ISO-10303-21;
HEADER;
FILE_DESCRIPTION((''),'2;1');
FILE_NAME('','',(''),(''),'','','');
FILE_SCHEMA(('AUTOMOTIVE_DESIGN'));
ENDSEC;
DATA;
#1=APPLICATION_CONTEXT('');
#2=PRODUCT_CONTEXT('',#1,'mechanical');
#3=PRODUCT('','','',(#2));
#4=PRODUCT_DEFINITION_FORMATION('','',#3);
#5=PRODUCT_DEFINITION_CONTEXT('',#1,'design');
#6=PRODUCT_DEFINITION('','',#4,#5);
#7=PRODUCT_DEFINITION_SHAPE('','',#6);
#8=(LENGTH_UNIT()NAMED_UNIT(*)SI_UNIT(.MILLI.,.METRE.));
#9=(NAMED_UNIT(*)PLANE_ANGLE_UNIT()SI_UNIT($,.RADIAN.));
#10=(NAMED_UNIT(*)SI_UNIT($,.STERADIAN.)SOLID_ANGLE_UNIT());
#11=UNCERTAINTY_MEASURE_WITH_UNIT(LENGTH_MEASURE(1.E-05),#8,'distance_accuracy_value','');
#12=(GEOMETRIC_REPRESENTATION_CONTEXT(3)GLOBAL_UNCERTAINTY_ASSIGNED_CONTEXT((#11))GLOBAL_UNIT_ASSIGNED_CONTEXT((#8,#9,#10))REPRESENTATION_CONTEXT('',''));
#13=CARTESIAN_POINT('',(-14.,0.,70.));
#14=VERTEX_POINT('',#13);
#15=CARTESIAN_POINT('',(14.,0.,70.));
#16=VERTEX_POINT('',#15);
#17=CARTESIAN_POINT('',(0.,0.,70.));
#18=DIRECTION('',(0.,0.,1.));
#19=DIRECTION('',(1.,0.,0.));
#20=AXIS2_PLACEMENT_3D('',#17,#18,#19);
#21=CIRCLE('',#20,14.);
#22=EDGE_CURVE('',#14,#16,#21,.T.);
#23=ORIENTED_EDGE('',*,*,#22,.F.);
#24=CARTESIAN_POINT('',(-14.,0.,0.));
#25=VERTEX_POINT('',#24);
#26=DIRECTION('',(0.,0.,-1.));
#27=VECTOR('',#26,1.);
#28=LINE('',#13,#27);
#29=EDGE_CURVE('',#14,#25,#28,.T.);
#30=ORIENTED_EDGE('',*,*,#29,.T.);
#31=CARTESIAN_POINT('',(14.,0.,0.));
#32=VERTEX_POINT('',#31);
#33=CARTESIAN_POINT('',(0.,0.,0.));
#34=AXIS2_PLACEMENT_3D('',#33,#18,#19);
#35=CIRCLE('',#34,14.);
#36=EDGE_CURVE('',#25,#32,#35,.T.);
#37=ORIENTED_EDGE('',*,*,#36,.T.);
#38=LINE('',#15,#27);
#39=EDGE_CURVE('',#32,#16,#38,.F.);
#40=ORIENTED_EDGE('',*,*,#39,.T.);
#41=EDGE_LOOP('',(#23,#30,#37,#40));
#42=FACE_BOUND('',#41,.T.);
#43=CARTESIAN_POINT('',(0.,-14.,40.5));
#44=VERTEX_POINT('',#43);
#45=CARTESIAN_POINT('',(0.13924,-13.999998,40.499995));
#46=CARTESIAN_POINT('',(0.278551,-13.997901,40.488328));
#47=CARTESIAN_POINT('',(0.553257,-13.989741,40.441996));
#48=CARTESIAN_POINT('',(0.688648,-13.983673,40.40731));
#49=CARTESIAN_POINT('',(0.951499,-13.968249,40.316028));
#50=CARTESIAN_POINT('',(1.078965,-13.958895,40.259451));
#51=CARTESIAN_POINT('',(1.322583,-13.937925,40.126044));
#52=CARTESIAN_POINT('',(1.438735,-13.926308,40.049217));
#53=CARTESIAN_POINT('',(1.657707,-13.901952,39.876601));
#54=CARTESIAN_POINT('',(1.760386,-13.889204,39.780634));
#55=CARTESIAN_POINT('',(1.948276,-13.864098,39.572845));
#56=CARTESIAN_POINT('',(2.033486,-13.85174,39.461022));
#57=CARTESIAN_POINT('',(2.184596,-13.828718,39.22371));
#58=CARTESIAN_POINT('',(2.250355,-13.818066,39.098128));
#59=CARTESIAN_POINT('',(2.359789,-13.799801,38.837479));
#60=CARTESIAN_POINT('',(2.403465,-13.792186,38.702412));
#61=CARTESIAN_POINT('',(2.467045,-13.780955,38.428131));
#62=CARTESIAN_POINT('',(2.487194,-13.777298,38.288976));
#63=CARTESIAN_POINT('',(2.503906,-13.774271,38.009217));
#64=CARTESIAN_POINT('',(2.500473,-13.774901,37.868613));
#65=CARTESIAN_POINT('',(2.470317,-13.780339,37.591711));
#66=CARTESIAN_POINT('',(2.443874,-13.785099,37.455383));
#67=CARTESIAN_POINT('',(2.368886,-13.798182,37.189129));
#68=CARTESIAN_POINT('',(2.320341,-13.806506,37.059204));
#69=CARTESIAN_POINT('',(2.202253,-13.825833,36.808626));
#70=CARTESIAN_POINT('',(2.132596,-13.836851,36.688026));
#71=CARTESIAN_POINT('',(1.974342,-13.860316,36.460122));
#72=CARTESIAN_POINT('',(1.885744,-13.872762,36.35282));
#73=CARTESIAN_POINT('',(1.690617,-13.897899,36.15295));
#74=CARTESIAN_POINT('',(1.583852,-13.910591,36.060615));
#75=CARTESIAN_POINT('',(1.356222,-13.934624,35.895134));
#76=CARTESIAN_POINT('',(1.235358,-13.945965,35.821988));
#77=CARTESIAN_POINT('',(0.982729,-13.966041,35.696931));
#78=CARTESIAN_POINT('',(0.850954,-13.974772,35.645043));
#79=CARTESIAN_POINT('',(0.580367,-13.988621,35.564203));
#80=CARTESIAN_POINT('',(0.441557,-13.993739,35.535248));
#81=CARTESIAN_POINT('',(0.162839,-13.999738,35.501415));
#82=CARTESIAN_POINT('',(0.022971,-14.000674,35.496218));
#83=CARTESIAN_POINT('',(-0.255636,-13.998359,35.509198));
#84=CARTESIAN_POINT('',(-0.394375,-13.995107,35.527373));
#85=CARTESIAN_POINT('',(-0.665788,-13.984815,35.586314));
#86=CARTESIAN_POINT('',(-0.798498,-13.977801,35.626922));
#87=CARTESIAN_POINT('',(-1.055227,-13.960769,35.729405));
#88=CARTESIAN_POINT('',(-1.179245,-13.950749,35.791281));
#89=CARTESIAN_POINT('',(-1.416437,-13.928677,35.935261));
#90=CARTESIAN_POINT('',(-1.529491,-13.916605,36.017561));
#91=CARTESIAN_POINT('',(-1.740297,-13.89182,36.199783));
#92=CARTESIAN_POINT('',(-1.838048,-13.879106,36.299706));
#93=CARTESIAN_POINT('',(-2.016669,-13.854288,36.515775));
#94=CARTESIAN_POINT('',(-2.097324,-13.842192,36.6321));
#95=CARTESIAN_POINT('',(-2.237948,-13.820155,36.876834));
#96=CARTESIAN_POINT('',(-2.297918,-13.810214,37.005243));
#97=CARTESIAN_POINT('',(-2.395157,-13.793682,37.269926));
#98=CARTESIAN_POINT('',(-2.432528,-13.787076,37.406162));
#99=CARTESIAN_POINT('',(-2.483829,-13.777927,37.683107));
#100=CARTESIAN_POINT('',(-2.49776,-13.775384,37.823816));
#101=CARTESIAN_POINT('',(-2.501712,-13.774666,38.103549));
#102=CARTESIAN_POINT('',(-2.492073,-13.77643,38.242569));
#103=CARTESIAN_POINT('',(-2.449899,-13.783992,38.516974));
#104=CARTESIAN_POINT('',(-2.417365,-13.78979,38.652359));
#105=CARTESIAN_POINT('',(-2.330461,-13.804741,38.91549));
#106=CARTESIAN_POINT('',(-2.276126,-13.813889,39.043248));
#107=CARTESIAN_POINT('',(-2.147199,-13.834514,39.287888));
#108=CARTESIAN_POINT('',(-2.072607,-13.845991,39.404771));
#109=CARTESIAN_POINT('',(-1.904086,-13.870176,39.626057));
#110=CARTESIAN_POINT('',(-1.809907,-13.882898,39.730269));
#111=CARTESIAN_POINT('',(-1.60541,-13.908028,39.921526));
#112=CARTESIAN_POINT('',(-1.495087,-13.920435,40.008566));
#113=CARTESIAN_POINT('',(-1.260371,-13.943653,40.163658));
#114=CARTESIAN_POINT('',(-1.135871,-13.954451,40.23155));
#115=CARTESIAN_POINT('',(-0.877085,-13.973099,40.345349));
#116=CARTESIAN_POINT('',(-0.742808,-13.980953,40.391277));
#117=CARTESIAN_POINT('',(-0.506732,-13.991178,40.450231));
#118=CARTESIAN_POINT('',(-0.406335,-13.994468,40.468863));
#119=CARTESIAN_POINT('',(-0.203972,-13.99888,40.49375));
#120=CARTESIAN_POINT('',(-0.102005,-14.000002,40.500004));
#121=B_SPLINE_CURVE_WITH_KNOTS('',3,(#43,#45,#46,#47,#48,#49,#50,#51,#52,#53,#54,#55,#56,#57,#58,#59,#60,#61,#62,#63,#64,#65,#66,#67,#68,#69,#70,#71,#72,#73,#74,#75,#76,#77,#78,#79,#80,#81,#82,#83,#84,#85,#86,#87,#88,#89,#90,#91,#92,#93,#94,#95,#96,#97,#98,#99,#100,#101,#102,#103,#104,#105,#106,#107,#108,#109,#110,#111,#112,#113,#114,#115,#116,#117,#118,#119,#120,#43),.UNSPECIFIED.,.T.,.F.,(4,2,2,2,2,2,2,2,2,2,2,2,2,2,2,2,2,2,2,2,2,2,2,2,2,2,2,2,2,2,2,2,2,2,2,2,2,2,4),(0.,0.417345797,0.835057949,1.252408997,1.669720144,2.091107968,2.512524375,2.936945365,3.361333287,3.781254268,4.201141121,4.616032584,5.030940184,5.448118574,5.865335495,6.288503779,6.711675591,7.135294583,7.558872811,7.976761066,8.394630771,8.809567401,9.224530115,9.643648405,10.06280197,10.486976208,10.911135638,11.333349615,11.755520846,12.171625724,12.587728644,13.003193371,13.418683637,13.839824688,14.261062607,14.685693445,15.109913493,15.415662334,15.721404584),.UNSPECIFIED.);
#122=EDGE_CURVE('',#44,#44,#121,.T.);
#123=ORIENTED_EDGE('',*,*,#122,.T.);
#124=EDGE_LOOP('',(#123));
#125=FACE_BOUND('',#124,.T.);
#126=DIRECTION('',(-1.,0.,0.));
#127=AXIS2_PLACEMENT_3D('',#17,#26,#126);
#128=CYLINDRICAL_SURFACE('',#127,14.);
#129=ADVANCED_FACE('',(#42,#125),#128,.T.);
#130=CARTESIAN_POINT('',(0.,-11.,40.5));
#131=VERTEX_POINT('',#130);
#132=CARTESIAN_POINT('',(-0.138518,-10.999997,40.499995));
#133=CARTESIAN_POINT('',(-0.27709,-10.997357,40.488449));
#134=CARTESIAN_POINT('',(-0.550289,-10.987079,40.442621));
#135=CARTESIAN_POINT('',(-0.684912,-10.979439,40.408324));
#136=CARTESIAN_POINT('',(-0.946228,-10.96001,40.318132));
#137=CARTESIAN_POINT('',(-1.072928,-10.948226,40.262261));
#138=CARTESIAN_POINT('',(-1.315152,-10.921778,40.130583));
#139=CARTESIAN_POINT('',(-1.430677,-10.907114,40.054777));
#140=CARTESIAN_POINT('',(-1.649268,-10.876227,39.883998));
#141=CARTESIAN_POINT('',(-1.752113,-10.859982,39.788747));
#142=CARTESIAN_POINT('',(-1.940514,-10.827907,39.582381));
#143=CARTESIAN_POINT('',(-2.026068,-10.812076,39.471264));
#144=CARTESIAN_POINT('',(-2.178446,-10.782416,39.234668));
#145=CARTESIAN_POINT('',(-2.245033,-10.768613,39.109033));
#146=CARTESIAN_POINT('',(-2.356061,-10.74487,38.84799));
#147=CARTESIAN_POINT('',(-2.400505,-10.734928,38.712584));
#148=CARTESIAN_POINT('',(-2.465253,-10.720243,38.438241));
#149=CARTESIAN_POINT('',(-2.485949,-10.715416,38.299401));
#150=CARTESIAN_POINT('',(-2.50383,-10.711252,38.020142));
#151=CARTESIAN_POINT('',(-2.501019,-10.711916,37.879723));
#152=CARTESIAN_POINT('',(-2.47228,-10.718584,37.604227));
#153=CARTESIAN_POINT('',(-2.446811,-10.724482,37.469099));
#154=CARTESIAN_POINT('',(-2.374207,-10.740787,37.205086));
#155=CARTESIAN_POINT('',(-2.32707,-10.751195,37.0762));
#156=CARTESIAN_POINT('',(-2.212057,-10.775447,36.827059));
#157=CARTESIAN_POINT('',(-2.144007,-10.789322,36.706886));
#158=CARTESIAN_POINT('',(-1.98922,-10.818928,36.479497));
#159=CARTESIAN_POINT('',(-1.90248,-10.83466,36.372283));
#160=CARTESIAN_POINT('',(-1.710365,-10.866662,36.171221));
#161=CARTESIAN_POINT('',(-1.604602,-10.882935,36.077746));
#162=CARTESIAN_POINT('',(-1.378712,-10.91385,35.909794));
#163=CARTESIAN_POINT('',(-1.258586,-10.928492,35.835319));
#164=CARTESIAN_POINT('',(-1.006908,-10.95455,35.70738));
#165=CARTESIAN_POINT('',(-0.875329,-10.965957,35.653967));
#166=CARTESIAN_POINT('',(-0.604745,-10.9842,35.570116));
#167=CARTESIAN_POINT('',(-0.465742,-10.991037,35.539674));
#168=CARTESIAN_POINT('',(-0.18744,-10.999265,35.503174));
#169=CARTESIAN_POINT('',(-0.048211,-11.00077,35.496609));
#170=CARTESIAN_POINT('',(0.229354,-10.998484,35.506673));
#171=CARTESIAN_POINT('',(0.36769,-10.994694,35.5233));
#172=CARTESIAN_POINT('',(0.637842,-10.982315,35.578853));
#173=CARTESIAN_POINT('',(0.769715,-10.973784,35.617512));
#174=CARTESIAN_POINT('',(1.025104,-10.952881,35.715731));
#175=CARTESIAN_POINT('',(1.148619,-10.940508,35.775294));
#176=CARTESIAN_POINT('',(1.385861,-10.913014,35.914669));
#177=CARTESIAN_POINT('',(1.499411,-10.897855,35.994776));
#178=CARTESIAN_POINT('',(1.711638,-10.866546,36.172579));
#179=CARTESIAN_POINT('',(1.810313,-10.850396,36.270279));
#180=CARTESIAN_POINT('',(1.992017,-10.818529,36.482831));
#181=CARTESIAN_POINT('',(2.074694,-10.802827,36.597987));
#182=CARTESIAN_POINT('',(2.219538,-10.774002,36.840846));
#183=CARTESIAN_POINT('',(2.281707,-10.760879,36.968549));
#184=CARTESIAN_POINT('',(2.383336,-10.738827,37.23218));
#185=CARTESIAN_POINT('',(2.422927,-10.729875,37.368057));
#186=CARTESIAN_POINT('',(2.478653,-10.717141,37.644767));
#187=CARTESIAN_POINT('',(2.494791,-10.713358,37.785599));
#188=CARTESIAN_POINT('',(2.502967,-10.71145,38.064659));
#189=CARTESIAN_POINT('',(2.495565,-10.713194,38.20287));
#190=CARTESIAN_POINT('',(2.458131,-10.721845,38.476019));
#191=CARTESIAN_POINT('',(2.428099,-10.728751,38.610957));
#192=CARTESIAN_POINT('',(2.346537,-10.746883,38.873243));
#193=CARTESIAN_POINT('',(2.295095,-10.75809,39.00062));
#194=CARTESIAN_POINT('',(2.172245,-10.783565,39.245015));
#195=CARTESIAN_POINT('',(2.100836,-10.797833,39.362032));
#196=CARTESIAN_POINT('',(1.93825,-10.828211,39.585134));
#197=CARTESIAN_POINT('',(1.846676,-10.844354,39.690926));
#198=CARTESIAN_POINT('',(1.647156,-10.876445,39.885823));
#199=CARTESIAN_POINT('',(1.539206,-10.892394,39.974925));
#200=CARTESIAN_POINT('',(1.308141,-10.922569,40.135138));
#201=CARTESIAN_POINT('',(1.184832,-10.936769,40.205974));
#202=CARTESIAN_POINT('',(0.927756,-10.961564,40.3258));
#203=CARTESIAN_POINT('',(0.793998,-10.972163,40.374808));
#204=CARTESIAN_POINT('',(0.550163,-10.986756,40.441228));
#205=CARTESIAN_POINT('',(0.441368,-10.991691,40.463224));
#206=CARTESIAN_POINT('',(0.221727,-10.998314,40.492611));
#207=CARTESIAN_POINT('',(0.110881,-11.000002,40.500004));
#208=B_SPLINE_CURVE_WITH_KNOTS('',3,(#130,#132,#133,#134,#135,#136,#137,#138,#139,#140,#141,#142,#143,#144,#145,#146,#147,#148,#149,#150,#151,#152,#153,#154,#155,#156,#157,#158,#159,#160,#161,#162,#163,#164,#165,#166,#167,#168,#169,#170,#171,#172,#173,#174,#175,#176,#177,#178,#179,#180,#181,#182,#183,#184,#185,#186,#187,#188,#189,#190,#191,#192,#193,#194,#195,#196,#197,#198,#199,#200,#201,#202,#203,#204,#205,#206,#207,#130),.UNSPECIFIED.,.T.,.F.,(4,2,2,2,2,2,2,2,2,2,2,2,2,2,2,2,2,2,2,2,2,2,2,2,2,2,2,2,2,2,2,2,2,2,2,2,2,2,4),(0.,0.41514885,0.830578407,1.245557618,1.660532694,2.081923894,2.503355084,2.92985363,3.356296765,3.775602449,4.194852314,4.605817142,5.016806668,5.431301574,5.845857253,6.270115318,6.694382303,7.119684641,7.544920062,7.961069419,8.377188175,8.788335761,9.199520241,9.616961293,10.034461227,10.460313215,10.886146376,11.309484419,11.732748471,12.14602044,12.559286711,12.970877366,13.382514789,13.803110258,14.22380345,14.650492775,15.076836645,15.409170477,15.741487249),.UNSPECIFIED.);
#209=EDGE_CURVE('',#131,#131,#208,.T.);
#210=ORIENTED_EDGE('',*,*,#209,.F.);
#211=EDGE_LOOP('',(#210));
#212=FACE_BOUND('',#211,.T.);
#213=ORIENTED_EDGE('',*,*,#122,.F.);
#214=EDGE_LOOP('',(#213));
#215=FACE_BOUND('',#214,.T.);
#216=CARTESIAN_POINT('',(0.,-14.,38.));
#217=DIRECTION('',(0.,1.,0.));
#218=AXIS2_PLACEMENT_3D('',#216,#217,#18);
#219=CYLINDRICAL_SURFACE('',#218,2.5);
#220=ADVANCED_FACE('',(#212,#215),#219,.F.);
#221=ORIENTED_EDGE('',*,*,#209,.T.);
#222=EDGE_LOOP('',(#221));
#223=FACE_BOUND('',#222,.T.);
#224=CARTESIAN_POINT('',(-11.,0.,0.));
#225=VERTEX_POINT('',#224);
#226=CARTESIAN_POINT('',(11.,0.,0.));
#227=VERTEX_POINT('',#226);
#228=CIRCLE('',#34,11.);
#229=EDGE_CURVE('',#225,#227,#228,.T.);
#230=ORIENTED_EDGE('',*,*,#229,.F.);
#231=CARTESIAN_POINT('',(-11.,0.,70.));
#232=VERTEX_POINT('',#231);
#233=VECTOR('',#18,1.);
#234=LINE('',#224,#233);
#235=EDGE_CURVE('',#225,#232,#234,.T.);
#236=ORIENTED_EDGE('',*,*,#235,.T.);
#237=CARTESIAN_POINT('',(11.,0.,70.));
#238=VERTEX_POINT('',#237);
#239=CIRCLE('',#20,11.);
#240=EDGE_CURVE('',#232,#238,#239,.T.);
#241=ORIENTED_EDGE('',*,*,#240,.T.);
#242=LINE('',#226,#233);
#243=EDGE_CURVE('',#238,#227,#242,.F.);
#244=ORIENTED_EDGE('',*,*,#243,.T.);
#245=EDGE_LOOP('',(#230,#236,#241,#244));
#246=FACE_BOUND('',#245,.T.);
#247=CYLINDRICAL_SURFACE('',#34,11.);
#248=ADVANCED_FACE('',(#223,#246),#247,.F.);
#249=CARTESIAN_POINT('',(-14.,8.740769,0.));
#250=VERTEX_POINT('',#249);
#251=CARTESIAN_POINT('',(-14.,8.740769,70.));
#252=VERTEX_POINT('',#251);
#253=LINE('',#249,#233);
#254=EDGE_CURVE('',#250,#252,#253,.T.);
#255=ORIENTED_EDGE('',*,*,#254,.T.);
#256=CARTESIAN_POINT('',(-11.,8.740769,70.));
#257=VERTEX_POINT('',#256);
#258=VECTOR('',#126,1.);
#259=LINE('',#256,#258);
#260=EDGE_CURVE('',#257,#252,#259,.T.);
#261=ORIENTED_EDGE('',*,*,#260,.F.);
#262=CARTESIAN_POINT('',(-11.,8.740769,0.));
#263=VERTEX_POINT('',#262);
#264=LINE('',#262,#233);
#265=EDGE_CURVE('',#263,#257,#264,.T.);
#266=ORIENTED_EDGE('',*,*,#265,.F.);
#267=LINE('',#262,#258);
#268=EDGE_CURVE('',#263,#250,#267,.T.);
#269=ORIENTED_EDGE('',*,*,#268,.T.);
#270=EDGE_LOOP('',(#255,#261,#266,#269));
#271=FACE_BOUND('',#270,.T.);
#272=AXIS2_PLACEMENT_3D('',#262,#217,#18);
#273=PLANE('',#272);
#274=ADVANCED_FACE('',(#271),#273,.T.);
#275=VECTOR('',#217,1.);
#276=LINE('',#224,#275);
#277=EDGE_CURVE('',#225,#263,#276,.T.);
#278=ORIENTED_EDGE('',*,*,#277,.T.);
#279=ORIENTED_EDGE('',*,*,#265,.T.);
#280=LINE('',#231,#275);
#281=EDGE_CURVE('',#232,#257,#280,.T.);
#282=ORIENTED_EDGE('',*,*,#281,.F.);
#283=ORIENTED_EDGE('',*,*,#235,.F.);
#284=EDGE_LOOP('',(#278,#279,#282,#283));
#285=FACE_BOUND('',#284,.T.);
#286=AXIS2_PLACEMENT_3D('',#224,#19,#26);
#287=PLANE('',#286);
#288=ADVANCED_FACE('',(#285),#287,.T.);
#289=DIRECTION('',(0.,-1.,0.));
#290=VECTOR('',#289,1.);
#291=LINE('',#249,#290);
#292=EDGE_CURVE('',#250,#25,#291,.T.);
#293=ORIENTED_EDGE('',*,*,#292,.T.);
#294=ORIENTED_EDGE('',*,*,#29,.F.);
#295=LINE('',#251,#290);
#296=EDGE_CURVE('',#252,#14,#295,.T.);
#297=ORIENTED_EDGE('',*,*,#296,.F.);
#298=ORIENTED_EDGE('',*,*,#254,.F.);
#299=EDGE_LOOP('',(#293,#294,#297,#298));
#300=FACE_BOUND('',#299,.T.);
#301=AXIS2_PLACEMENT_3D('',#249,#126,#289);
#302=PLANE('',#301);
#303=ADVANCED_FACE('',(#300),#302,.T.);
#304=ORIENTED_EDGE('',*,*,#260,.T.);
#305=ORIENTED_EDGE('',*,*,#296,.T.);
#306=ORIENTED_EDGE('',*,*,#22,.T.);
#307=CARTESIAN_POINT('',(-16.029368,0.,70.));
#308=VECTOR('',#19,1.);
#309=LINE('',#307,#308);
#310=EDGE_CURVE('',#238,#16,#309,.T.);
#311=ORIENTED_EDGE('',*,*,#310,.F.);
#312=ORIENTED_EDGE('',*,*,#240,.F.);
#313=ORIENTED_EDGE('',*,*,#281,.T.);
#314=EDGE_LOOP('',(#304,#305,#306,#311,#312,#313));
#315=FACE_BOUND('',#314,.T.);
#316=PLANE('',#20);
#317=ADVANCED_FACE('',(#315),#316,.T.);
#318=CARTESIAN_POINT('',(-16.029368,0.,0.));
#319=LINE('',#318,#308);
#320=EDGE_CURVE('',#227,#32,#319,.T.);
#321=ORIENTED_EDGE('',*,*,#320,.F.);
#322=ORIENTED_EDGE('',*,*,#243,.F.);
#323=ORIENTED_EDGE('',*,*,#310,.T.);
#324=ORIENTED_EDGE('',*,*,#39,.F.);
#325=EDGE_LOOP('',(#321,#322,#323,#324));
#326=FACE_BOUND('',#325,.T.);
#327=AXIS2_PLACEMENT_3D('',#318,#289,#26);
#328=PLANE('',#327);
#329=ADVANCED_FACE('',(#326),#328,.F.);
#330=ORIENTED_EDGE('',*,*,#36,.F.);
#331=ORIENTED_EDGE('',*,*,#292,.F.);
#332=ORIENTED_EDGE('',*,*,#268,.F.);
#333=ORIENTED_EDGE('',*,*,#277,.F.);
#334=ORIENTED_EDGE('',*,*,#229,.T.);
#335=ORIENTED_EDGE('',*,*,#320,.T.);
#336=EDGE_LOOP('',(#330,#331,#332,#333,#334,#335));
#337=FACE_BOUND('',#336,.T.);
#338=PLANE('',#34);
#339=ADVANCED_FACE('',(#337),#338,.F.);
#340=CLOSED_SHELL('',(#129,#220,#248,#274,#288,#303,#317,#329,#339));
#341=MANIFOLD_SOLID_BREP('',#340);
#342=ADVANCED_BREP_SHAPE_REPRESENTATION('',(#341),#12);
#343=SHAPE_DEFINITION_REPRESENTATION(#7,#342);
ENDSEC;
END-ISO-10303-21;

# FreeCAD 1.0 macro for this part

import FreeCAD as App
import Part
import Sketcher

V = App.Vector
Q = App.Units.Quantity


def add_polygon(sketch, points):
    """Adds a closed chain of lines whose ends are joined by coincident constraints."""
    first, n = sketch.GeometryCount, len(points)
    for a, b in zip(points, points[1:] + points[:1]):
        sketch.addGeometry(Part.LineSegment(App.Vector(*a, 0), App.Vector(*b, 0)), False)
    for i in range(n):
        sketch.addConstraint(Sketcher.Constraint("Coincident", first + i, 2, first + (i + 1) % n, 1))

doc = App.newDocument("Part")
body = doc.addObject("PartDesign::Body", "Body")

sketch1 = doc.addObject("Sketcher::SketchObject", "Sketch")
body.addObject(sketch1)
sketch1.AttachmentSupport = (doc.XY_Plane, [""])
sketch1.MapMode = "FlatFace"
sketch1.addGeometry(Part.Circle(V(0, 0, 0), V(0, 0, 1), 14), False)
sketch1.addConstraint([
    Sketcher.Constraint("Coincident", 0, 3, -1, 1),
    Sketcher.Constraint("Diameter", 0, Q("28 mm")),
])
pad1 = doc.addObject("PartDesign::Pad", "Pad")
body.addObject(pad1)
pad1.Profile = sketch1
pad1.Length = 70

sketch2 = doc.addObject("Sketcher::SketchObject", "Sketch001")
body.addObject(sketch2)
sketch2.AttachmentSupport = (doc.XY_Plane, [""])
sketch2.MapMode = "FlatFace"
sketch2.AttachmentOffset = App.Placement(V(0, 0, 70), App.Rotation())
sketch2.addGeometry(Part.Circle(V(0, 0, 0), V(0, 0, 1), 11), False)
sketch2.addConstraint([
    Sketcher.Constraint("Coincident", 0, 3, -1, 1),
    Sketcher.Constraint("Diameter", 0, Q("22 mm")),
])
pocket1 = doc.addObject("PartDesign::Pocket", "Pocket")
body.addObject(pocket1)
pocket1.Profile = sketch2
pocket1.Type = "ThroughAll"

sketch3 = doc.addObject("Sketcher::SketchObject", "Sketch002")
body.addObject(sketch3)
sketch3.AttachmentSupport = (doc.XY_Plane, [""])
sketch3.MapMode = "FlatFace"
sketch3.AttachmentOffset = App.Placement(V(0, 0, 70), App.Rotation())
add_polygon(sketch3, [(-16.029368, 15.278666), (-16.029368, 0), (16.201246, 0), (16.201246, 15.278666)])
sketch3.addConstraint([
    Sketcher.Constraint("Vertical", 0),
    Sketcher.Constraint("Horizontal", 1),
    Sketcher.Constraint("Vertical", 2),
    Sketcher.Constraint("Horizontal", 3),
    Sketcher.Constraint("PointOnObject", 0, 2, -1),
    Sketcher.Constraint("DistanceX", 1, 1, 1, 2, Q("32.230614 mm")),
    Sketcher.Constraint("DistanceY", 0, 2, 0, 1, Q("15.278666 mm")),
    Sketcher.Constraint("DistanceX", 0, 2, -1, 1, Q("16.029368 mm")),
])
pocket2 = doc.addObject("PartDesign::Pocket", "Pocket001")
body.addObject(pocket2)
pocket2.Profile = sketch3
pocket2.Type = "ThroughAll"

sketch4 = doc.addObject("Sketcher::SketchObject", "Sketch003")
body.addObject(sketch4)
sketch4.AttachmentSupport = (doc.XY_Plane, [""])
sketch4.MapMode = "FlatFace"
sketch4.AttachmentOffset = App.Placement(V(0, 0, 70), App.Rotation())
add_polygon(sketch4, [(-14, 8.740769), (-14, 0), (-11, 0), (-11, 8.740769)])
sketch4.addConstraint([
    Sketcher.Constraint("Vertical", 0),
    Sketcher.Constraint("Horizontal", 1),
    Sketcher.Constraint("Vertical", 2),
    Sketcher.Constraint("Horizontal", 3),
    Sketcher.Constraint("PointOnObject", 0, 2, -1),
    Sketcher.Constraint("DistanceX", 1, 1, 1, 2, Q("3 mm")),
    Sketcher.Constraint("DistanceX", 0, 2, -1, 1, Q("14 mm")),
    Sketcher.Constraint("DistanceY", 0, 2, 0, 1, Q("8.740769 mm")),
])
pad2 = doc.addObject("PartDesign::Pad", "Pad001")
body.addObject(pad2)
pad2.Profile = sketch4
pad2.Length = 70
pad2.Reversed = True

sketch5 = doc.addObject("Sketcher::SketchObject", "Sketch004")
body.addObject(sketch5)
sketch5.AttachmentSupport = (doc.XZ_Plane, [""])
sketch5.MapMode = "FlatFace"
sketch5.addGeometry(Part.Circle(V(0, 38, 0), V(0, 0, 1), 2.5), False)
sketch5.addConstraint([
    Sketcher.Constraint("PointOnObject", 0, 3, -2),
    Sketcher.Constraint("Diameter", 0, Q("5 mm")),
    Sketcher.Constraint("DistanceY", -1, 1, 0, 3, Q("38 mm")),
])
pocket3 = doc.addObject("PartDesign::Pocket", "Pocket002")
body.addObject(pocket3)
pocket3.Profile = sketch5
pocket3.Type = "ThroughAll"
pocket3.Reversed = True

doc.recompute()
